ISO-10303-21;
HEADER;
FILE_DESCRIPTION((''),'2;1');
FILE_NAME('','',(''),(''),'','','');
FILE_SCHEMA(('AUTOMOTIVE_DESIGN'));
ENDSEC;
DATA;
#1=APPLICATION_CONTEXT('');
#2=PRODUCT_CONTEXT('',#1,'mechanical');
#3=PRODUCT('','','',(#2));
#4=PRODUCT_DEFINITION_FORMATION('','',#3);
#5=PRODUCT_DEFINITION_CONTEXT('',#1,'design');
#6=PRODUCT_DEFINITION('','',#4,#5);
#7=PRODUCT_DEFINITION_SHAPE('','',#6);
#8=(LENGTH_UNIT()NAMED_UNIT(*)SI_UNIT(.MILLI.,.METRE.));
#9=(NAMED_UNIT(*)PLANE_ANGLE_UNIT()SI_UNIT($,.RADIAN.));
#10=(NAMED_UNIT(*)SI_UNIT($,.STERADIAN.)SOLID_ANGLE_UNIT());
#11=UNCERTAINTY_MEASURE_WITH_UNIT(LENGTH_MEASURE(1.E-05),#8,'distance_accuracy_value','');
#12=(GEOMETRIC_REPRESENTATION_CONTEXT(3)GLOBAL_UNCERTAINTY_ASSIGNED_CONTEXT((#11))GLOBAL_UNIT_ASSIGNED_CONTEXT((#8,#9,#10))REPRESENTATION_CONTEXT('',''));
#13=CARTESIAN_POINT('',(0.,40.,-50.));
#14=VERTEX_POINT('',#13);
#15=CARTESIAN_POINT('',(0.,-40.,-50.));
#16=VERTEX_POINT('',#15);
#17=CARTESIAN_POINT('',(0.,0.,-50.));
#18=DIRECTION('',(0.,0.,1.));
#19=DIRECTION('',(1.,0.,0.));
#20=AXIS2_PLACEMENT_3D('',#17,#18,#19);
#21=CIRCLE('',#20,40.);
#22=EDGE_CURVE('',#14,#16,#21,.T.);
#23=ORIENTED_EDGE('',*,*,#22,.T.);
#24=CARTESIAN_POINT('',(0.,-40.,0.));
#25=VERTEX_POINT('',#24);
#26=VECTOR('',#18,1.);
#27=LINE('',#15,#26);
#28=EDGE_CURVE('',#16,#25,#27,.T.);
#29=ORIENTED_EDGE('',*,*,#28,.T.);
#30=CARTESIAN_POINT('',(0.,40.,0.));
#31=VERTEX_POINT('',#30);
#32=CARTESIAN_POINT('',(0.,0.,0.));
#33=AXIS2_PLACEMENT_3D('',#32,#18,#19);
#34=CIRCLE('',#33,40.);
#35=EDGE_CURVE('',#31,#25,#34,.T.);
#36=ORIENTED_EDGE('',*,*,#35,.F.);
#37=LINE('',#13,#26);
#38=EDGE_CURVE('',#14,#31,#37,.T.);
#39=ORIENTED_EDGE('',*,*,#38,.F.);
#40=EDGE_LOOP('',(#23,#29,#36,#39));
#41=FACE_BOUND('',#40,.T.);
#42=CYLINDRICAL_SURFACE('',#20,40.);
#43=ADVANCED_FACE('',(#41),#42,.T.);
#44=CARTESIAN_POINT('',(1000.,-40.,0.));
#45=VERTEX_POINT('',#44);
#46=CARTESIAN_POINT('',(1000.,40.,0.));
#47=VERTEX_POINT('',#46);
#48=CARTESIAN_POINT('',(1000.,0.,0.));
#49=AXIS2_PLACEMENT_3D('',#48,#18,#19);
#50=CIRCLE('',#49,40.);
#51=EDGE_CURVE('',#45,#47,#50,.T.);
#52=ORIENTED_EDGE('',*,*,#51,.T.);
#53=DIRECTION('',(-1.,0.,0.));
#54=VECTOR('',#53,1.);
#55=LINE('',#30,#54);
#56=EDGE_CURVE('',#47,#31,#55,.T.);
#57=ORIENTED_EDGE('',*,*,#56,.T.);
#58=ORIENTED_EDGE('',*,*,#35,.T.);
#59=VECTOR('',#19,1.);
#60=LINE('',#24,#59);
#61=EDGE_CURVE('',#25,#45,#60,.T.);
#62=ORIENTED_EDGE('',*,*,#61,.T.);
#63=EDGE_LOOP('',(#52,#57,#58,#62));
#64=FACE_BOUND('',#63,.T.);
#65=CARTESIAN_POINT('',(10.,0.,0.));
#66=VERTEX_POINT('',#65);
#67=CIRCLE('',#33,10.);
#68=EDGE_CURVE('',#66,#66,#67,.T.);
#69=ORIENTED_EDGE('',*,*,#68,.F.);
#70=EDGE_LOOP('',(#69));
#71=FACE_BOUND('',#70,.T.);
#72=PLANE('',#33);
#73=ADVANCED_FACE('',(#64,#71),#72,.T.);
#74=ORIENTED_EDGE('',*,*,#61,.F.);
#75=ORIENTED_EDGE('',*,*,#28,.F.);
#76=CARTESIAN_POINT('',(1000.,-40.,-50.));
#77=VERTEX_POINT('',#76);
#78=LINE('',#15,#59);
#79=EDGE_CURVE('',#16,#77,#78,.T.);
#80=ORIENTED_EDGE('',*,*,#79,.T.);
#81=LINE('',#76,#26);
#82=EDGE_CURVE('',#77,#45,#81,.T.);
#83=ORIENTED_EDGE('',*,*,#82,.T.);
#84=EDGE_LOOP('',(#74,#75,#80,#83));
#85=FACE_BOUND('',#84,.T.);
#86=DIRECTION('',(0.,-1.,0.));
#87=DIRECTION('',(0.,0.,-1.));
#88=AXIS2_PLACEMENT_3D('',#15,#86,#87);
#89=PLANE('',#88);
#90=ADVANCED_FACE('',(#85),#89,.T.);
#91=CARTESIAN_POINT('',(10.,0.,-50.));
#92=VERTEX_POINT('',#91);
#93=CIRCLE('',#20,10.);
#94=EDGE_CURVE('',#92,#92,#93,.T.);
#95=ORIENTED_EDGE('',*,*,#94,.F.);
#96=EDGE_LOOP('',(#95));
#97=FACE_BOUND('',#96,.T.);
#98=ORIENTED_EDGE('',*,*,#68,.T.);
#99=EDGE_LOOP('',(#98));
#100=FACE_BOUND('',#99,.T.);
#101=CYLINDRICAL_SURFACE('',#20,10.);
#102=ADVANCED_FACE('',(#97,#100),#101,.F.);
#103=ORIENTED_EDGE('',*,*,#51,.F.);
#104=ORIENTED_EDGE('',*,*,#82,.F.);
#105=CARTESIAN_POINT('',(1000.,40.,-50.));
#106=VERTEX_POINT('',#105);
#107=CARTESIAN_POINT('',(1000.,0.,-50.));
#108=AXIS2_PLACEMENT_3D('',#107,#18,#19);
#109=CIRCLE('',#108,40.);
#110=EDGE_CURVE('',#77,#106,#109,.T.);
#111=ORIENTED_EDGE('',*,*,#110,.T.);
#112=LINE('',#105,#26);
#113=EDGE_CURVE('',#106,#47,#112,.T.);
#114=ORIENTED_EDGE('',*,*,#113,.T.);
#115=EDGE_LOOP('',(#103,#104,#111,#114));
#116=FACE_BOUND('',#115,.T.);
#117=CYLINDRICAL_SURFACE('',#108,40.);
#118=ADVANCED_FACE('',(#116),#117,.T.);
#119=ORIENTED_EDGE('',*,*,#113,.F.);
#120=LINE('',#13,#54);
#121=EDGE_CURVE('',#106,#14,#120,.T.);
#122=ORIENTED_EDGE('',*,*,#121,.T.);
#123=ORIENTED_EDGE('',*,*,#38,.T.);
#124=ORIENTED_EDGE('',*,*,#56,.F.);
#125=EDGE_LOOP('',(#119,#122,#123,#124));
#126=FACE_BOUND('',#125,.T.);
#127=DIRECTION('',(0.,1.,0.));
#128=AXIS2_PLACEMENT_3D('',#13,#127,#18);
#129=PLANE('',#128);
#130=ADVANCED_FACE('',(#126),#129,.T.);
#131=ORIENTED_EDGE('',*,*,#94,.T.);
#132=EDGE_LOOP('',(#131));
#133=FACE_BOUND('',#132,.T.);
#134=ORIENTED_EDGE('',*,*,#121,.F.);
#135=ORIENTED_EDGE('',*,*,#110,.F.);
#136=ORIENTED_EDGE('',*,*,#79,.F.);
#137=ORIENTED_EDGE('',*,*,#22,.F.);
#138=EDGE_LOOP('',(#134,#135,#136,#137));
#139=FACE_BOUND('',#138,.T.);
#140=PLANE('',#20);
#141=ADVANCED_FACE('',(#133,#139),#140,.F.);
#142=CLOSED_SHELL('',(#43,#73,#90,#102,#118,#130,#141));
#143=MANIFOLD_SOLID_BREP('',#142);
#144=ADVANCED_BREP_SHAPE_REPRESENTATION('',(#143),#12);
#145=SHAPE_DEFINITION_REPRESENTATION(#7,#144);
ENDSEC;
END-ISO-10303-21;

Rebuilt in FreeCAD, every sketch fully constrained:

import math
import FreeCAD as App
import Part
import Sketcher

doc = App.newDocument("Part")
body = doc.addObject("PartDesign::Body", "Body")

sketch1 = body.newObject("Sketcher::SketchObject", "Sketch")
sketch1.AttachmentSupport = (doc.getObject("XY_Plane"), [""])
sketch1.MapMode = "FlatFace"
sketch1.addGeometry([
    Part.LineSegment(App.Vector(1000, 40, 0), App.Vector(0, 40, 0)),
    Part.ArcOfCircle(Part.Circle(App.Vector(0, 0, 0), App.Vector(0, 0, 1), 40), math.radians(90), math.radians(270)),
    Part.LineSegment(App.Vector(0, -40, 0), App.Vector(1000, -40, 0)),
    Part.ArcOfCircle(Part.Circle(App.Vector(1000, 0, 0), App.Vector(0, 0, 1), 40), math.radians(-90), math.radians(90)),
    Part.Circle(App.Vector(0, 0, 0), App.Vector(0, 0, 1), 10),
], False)
sketch1.addConstraint([
    Sketcher.Constraint("Tangent", 0, 2, 1, 1),
    Sketcher.Constraint("Tangent", 1, 2, 2, 1),
    Sketcher.Constraint("Tangent", 2, 2, 3, 1),
    Sketcher.Constraint("Tangent", 3, 2, 0, 1),
    Sketcher.Constraint("Horizontal", 0),
    Sketcher.Constraint("Horizontal", 2),
    Sketcher.Constraint("Coincident", 1, 3, -1, 1),
    Sketcher.Constraint("Coincident", 4, 3, -1, 1),
    Sketcher.Constraint("Diameter", 4, 20.0),
    Sketcher.Constraint("Radius", 1, 40.0),
    Sketcher.Constraint("DistanceX", 0, 2, 0, 1, 1000.0),
])
pad1 = body.newObject("PartDesign::Pad", "Pad")
pad1.Profile = sketch1
pad1.Length = 50
pad1.Reversed = True

doc.recompute()
